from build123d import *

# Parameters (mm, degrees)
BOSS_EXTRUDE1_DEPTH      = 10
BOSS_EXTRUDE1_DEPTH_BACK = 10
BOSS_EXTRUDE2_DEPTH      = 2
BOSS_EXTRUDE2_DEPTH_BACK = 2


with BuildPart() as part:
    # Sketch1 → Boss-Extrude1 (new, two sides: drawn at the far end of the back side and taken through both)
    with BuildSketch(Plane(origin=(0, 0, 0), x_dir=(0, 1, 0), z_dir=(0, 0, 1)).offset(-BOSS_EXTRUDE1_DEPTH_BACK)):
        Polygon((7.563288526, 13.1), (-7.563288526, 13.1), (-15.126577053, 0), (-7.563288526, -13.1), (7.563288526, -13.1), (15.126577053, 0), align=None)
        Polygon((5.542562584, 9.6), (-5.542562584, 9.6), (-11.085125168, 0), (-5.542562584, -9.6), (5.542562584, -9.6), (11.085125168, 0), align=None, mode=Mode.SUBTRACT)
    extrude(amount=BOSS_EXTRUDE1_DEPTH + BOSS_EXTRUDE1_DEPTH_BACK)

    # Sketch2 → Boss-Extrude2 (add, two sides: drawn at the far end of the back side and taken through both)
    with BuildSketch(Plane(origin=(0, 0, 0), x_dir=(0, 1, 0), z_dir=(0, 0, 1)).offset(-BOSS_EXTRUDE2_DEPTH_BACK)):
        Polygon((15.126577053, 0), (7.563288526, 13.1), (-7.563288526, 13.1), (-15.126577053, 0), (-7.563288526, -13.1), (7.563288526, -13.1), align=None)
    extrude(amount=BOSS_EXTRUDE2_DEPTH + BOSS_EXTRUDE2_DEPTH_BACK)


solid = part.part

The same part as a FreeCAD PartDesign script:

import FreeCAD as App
import Part
import Sketcher

V = App.Vector
Q = App.Units.Quantity

doc = App.newDocument("Part")
body = doc.addObject("PartDesign::Body", "Body")

# Sketch on XY plane
sketch1 = body.newObject("Sketcher::SketchObject", "Sketch")
sketch1.AttachmentSupport = (doc.getObject("XY_Plane"), [""])
sketch1.MapMode = "FlatFace"
sketch1.addGeometry([
    Part.LineSegment(V(-13, 8, 0), V(-13, -8, 0)),  # 0
    Part.LineSegment(V(-13, -8, 0), V(0, -15, 0)),  # 1
    Part.LineSegment(V(0, -15, 0), V(13, -8, 0)),  # 2
    Part.LineSegment(V(13, -8, 0), V(13, 8, 0)),  # 3
    Part.LineSegment(V(13, 8, 0), V(0, 15, 0)),  # 4
    Part.LineSegment(V(0, 15, 0), V(-13, 8, 0)),  # 5
    Part.LineSegment(V(-10, -6, 0), V(-10, 6, 0)),  # 6
    Part.LineSegment(V(-10, 6, 0), V(0, 11, 0)),  # 7
    Part.LineSegment(V(0, 11, 0), V(10, 6, 0)),  # 8
    Part.LineSegment(V(10, 6, 0), V(10, -6, 0)),  # 9
    Part.LineSegment(V(10, -6, 0), V(0, -11, 0)),  # 10
    Part.LineSegment(V(0, -11, 0), V(-10, -6, 0)),  # 11
], False)
sketch1.addConstraint([
    Sketcher.Constraint("Coincident", 0, 2, 1, 1),
    Sketcher.Constraint("Coincident", 1, 2, 2, 1),
    Sketcher.Constraint("Coincident", 2, 2, 3, 1),
    Sketcher.Constraint("Coincident", 3, 2, 4, 1),
    Sketcher.Constraint("Coincident", 4, 2, 5, 1),
    Sketcher.Constraint("Coincident", 5, 2, 0, 1),
    Sketcher.Constraint("Coincident", 6, 2, 7, 1),
    Sketcher.Constraint("Coincident", 7, 2, 8, 1),
    Sketcher.Constraint("Coincident", 8, 2, 9, 1),
    Sketcher.Constraint("Coincident", 9, 2, 10, 1),
    Sketcher.Constraint("Coincident", 10, 2, 11, 1),
    Sketcher.Constraint("Coincident", 11, 2, 6, 1),
    Sketcher.Constraint("Vertical", 0),
    Sketcher.Constraint("Vertical", 3),
    Sketcher.Constraint("Vertical", 6),
    Sketcher.Constraint("Vertical", 9),
    Sketcher.Constraint("Symmetric", 0, 2, 3, 2, -1, 1),
    Sketcher.Constraint("Symmetric", 1, 2, 4, 2, -1, 1),
    Sketcher.Constraint("Symmetric", 6, 2, 9, 2, -1, 1),
    Sketcher.Constraint("Symmetric", 7, 2, 10, 2, -1, 1),
    Sketcher.Constraint("PointOnObject", 1, 2, -2),
    Sketcher.Constraint("PointOnObject", 7, 2, -2),
    Sketcher.Constraint("Parallel", 2, 5),
    Sketcher.Constraint("Parallel", 5, 7),
    Sketcher.Constraint("Parallel", 4, 8),
    Sketcher.Constraint("Parallel", 8, 11),
    Sketcher.Constraint("Horizontal", 0, 2, 2, 2),
    Sketcher.Constraint("Angle", 1, Q("-30 deg")),
    Sketcher.Constraint("DistanceX", 0, 2, -1, 1, 13.1),
    Sketcher.Constraint("DistanceX", 6, 2, -1, 1, 9.6),
    Sketcher.Constraint("DistanceY", 0, 2, 0, 1, 15.126577),
    Sketcher.Constraint("DistanceY", 6, 1, 6, 2, 11.085125),
])
pad1 = body.newObject("PartDesign::Pad", "Pad")
pad1.Profile = sketch1
pad1.Type = "TwoLengths"
pad1.Length = 10
pad1.Length2 = 10

# Sketch on XY plane
sketch2 = body.newObject("Sketcher::SketchObject", "Sketch001")
sketch2.AttachmentSupport = (doc.getObject("XY_Plane"), [""])
sketch2.MapMode = "FlatFace"
sketch2.addGeometry([
    Part.LineSegment(V(0, 15, 0), V(-13, 8, 0)),  # 0
    Part.LineSegment(V(-13, 8, 0), V(-13, -8, 0)),  # 1
    Part.LineSegment(V(-13, -8, 0), V(0, -15, 0)),  # 2
    Part.LineSegment(V(0, -15, 0), V(13, -8, 0)),  # 3
    Part.LineSegment(V(13, -8, 0), V(13, 8, 0)),  # 4
    Part.LineSegment(V(13, 8, 0), V(0, 15, 0)),  # 5
], False)
sketch2.addConstraint([
    Sketcher.Constraint("Coincident", 0, 2, 1, 1),
    Sketcher.Constraint("Coincident", 1, 2, 2, 1),
    Sketcher.Constraint("Coincident", 2, 2, 3, 1),
    Sketcher.Constraint("Coincident", 3, 2, 4, 1),
    Sketcher.Constraint("Coincident", 4, 2, 5, 1),
    Sketcher.Constraint("Coincident", 5, 2, 0, 1),
    Sketcher.Constraint("Vertical", 1),
    Sketcher.Constraint("Vertical", 4),
    Sketcher.Constraint("Symmetric", 0, 2, 3, 2, -1, 1),
    Sketcher.Constraint("Symmetric", 2, 2, 5, 2, -1, 1),
    Sketcher.Constraint("PointOnObject", 2, 2, -2),
    Sketcher.Constraint("Parallel", 2, 5),
    Sketcher.Constraint("Horizontal", 1, 2, 3, 2),
    Sketcher.Constraint("Angle", 0, Q("-150 deg")),
    Sketcher.Constraint("DistanceX", 0, 2, -1, 1, 13.1),
    Sketcher.Constraint("DistanceY", 1, 2, 1, 1, 15.126577),
])
pad2 = body.newObject("PartDesign::Pad", "Pad001")
pad2.Profile = sketch2
pad2.Type = "TwoLengths"
pad2.Length = 2
pad2.Length2 = 2

doc.recompute()
